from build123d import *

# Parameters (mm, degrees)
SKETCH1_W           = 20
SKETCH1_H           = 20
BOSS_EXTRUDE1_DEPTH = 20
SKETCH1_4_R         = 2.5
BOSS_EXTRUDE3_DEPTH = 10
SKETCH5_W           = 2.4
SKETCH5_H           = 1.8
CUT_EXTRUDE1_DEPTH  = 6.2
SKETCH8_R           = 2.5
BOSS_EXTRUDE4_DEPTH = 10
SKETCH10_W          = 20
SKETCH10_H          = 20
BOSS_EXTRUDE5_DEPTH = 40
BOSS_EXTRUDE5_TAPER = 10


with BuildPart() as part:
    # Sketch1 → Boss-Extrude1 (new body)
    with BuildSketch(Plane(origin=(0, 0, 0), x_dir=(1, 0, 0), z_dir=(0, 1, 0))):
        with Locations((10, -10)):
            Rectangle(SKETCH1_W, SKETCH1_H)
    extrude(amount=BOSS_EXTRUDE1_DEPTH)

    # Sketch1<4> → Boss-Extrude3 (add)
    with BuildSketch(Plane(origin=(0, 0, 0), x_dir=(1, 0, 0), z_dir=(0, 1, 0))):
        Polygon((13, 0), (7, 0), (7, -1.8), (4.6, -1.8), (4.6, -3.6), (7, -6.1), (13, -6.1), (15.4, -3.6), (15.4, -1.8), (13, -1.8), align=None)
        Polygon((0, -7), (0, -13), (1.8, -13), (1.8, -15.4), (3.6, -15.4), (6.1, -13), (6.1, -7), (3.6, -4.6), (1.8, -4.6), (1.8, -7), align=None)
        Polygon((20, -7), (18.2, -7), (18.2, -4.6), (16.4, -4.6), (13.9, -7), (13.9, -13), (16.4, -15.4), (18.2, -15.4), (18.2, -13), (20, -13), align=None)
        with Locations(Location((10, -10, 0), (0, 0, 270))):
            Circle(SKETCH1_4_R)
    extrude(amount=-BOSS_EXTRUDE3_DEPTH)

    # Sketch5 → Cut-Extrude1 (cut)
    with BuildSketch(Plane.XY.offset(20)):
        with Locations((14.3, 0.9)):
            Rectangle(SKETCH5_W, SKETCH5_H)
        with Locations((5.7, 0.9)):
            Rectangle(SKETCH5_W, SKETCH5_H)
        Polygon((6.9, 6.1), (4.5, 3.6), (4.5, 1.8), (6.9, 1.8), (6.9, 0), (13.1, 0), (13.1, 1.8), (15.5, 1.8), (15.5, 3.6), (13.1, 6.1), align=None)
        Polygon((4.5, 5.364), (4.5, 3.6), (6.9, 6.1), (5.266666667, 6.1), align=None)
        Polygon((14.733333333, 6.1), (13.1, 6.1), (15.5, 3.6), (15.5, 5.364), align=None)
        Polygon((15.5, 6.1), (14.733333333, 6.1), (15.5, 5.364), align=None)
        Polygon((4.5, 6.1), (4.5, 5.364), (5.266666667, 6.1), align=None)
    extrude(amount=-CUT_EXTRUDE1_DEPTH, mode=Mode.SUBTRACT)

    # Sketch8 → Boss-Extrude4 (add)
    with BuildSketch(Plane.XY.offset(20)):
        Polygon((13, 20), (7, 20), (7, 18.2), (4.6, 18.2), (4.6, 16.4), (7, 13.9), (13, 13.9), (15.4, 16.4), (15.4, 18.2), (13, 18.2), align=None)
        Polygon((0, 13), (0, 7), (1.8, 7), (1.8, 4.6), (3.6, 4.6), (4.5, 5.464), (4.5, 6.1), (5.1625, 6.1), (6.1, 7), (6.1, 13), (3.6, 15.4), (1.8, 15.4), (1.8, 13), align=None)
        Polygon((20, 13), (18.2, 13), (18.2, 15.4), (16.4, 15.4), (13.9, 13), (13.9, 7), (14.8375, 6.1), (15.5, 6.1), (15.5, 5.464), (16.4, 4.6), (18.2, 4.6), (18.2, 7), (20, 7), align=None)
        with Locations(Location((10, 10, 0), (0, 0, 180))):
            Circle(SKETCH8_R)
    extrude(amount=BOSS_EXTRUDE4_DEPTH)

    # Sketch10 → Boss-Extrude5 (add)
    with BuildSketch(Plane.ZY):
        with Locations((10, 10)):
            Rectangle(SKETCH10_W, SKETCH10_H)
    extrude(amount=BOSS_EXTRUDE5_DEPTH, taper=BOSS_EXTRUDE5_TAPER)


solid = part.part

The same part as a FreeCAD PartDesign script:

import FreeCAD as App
import Part
import Sketcher
Q = App.Units.Quantity

doc = App.newDocument("Part")
body = doc.addObject("PartDesign::Body", "Body")

sketch1 = body.newObject("Sketcher::SketchObject", "Sketch")
sketch1.AttachmentSupport = (doc.getObject("XZ_Plane"), [""])
sketch1.MapMode = "FlatFace"
sketch1.addGeometry([
    Part.LineSegment(App.Vector(0, 0, 0), App.Vector(0, 20, 0)),
    Part.LineSegment(App.Vector(0, 20, 0), App.Vector(20, 20, 0)),
    Part.LineSegment(App.Vector(20, 20, 0), App.Vector(20, 0, 0)),
    Part.LineSegment(App.Vector(20, 0, 0), App.Vector(0, 0, 0)),
], False)
sketch1.addConstraint([
    Sketcher.Constraint("Coincident", 0, 2, 1, 1),
    Sketcher.Constraint("Coincident", 1, 2, 2, 1),
    Sketcher.Constraint("Coincident", 2, 2, 3, 1),
    Sketcher.Constraint("Coincident", 3, 2, 0, 1),
    Sketcher.Constraint("Vertical", 0),
    Sketcher.Constraint("Horizontal", 1),
    Sketcher.Constraint("Vertical", 2),
    Sketcher.Constraint("Horizontal", 3),
    Sketcher.Constraint("Coincident", 3, 2, -1, 1),
    Sketcher.Constraint("Equal", 3, 0),
    Sketcher.Constraint("DistanceX", 1, 1, 1, 2, Q("20 mm")),
])
pad1 = body.newObject("PartDesign::Pad", "Pad")
pad1.Profile = sketch1
pad1.Length = 20
pad1.Reversed = True

sketch2 = body.newObject("Sketcher::SketchObject", "Sketch001")
sketch2.AttachmentSupport = (doc.getObject("XZ_Plane"), [""])
sketch2.MapMode = "FlatFace"
sketch2.addGeometry([
    Part.LineSegment(App.Vector(13, 0, 0), App.Vector(7, 0, 0)),
    Part.LineSegment(App.Vector(7, 0, 0), App.Vector(7, 1.8, 0)),
    Part.LineSegment(App.Vector(7, 1.8, 0), App.Vector(4.6, 1.8, 0)),
    Part.LineSegment(App.Vector(4.6, 1.8, 0), App.Vector(4.6, 3.6, 0)),
    Part.LineSegment(App.Vector(4.6, 3.6, 0), App.Vector(7, 6.1, 0)),
    Part.LineSegment(App.Vector(7, 6.1, 0), App.Vector(13, 6.1, 0)),
    Part.LineSegment(App.Vector(13, 6.1, 0), App.Vector(15.4, 3.6, 0)),
    Part.LineSegment(App.Vector(15.4, 3.6, 0), App.Vector(15.4, 1.8, 0)),
    Part.LineSegment(App.Vector(15.4, 1.8, 0), App.Vector(13, 1.8, 0)),
    Part.LineSegment(App.Vector(13, 1.8, 0), App.Vector(13, 0, 0)),
    Part.LineSegment(App.Vector(0, 7, 0), App.Vector(0, 13, 0)),
    Part.LineSegment(App.Vector(0, 13, 0), App.Vector(1.8, 13, 0)),
    Part.LineSegment(App.Vector(1.8, 13, 0), App.Vector(1.8, 15.4, 0)),
    Part.LineSegment(App.Vector(1.8, 15.4, 0), App.Vector(3.6, 15.4, 0)),
    Part.LineSegment(App.Vector(3.6, 15.4, 0), App.Vector(6.1, 13, 0)),
    Part.LineSegment(App.Vector(6.1, 13, 0), App.Vector(6.1, 7, 0)),
    Part.LineSegment(App.Vector(6.1, 7, 0), App.Vector(3.6, 4.6, 0)),
    Part.LineSegment(App.Vector(3.6, 4.6, 0), App.Vector(1.8, 4.6, 0)),
    Part.LineSegment(App.Vector(1.8, 4.6, 0), App.Vector(1.8, 7, 0)),
    Part.LineSegment(App.Vector(1.8, 7, 0), App.Vector(0, 7, 0)),
    Part.LineSegment(App.Vector(20, 7, 0), App.Vector(18.2, 7, 0)),
    Part.LineSegment(App.Vector(18.2, 7, 0), App.Vector(18.2, 4.6, 0)),
    Part.LineSegment(App.Vector(18.2, 4.6, 0), App.Vector(16.4, 4.6, 0)),
    Part.LineSegment(App.Vector(16.4, 4.6, 0), App.Vector(13.9, 7, 0)),
    Part.LineSegment(App.Vector(13.9, 7, 0), App.Vector(13.9, 13, 0)),
    Part.LineSegment(App.Vector(13.9, 13, 0), App.Vector(16.4, 15.4, 0)),
    Part.LineSegment(App.Vector(16.4, 15.4, 0), App.Vector(18.2, 15.4, 0)),
    Part.LineSegment(App.Vector(18.2, 15.4, 0), App.Vector(18.2, 13, 0)),
    Part.LineSegment(App.Vector(18.2, 13, 0), App.Vector(20, 13, 0)),
    Part.LineSegment(App.Vector(20, 13, 0), App.Vector(20, 7, 0)),
    Part.Circle(App.Vector(10, 10, 0), App.Vector(0, 0, 1), 2.5),
], False)
sketch2.addConstraint([
    Sketcher.Constraint("Coincident", 0, 2, 1, 1),
    Sketcher.Constraint("Coincident", 1, 2, 2, 1),
    Sketcher.Constraint("Coincident", 2, 2, 3, 1),
    Sketcher.Constraint("Coincident", 3, 2, 4, 1),
    Sketcher.Constraint("Coincident", 4, 2, 5, 1),
    Sketcher.Constraint("Coincident", 5, 2, 6, 1),
    Sketcher.Constraint("Coincident", 6, 2, 7, 1),
    Sketcher.Constraint("Coincident", 7, 2, 8, 1),
    Sketcher.Constraint("Coincident", 8, 2, 9, 1),
    Sketcher.Constraint("Coincident", 9, 2, 0, 1),
    Sketcher.Constraint("Coincident", 10, 2, 11, 1),
    Sketcher.Constraint("Coincident", 11, 2, 12, 1),
    Sketcher.Constraint("Coincident", 12, 2, 13, 1),
    Sketcher.Constraint("Coincident", 13, 2, 14, 1),
    Sketcher.Constraint("Coincident", 14, 2, 15, 1),
    Sketcher.Constraint("Coincident", 15, 2, 16, 1),
    Sketcher.Constraint("Coincident", 16, 2, 17, 1),
    Sketcher.Constraint("Coincident", 17, 2, 18, 1),
    Sketcher.Constraint("Coincident", 18, 2, 19, 1),
    Sketcher.Constraint("Coincident", 19, 2, 10, 1),
    Sketcher.Constraint("Coincident", 20, 2, 21, 1),
    Sketcher.Constraint("Coincident", 21, 2, 22, 1),
    Sketcher.Constraint("Coincident", 22, 2, 23, 1),
    Sketcher.Constraint("Coincident", 23, 2, 24, 1),
    Sketcher.Constraint("Coincident", 24, 2, 25, 1),
    Sketcher.Constraint("Coincident", 25, 2, 26, 1),
    Sketcher.Constraint("Coincident", 26, 2, 27, 1),
    Sketcher.Constraint("Coincident", 27, 2, 28, 1),
    Sketcher.Constraint("Coincident", 28, 2, 29, 1),
    Sketcher.Constraint("Coincident", 29, 2, 20, 1),
    Sketcher.Constraint("Horizontal", 0),
    Sketcher.Constraint("Vertical", 1),
    Sketcher.Constraint("Horizontal", 2),
    Sketcher.Constraint("Vertical", 3),
    Sketcher.Constraint("Horizontal", 5),
    Sketcher.Constraint("Vertical", 7),
    Sketcher.Constraint("Horizontal", 8),
    Sketcher.Constraint("Vertical", 9),
    Sketcher.Constraint("Vertical", 10),
    Sketcher.Constraint("Horizontal", 11),
    Sketcher.Constraint("Vertical", 12),
    Sketcher.Constraint("Horizontal", 13),
    Sketcher.Constraint("Vertical", 15),
    Sketcher.Constraint("Horizontal", 17),
    Sketcher.Constraint("Vertical", 18),
    Sketcher.Constraint("Horizontal", 19),
    Sketcher.Constraint("Horizontal", 20),
    Sketcher.Constraint("Vertical", 21),
    Sketcher.Constraint("Horizontal", 22),
    Sketcher.Constraint("Vertical", 24),
    Sketcher.Constraint("Horizontal", 26),
    Sketcher.Constraint("Vertical", 27),
    Sketcher.Constraint("Horizontal", 28),
    Sketcher.Constraint("Vertical", 29),
    Sketcher.Constraint("PointOnObject", 0, 2, -1),
    Sketcher.Constraint("PointOnObject", 10, 2, -2),
    Sketcher.Constraint("Perpendicular", 4, 14),
    Sketcher.Constraint("Perpendicular", 6, 16),
    Sketcher.Constraint("Parallel", 14, 23),
    Sketcher.Constraint("Parallel", 16, 25),
    Sketcher.Constraint("Horizontal", 3, 2, 6, 2),
    Sketcher.Constraint("Horizontal", 2, 2, 7, 2),
    Sketcher.Constraint("Horizontal", 11, 2, 14, 2),
    Sketcher.Constraint("Horizontal", 15, 2, 18, 2),
    Sketcher.Constraint("Horizontal", 19, 2, 20, 2),
    Sketcher.Constraint("Horizontal", 17, 2, 21, 2),
    Sketcher.Constraint("Horizontal", 20, 2, 23, 2),
    Sketcher.Constraint("Horizontal", 14, 2, 24, 2),
    Sketcher.Constraint("Horizontal", 13, 2, 25, 2),
    Sketcher.Constraint("Horizontal", 24, 2, 27, 2),
    Sketcher.Constraint("Vertical", 1, 2, 4, 2),
    Sketcher.Constraint("Vertical", 5, 2, 8, 2),
    Sketcher.Constraint("Vertical", 13, 2, 16, 2),
    Sketcher.Constraint("Vertical", 12, 2, 17, 2),
    Sketcher.Constraint("Vertical", 22, 2, 25, 2),
    Sketcher.Constraint("Vertical", 21, 2, 26, 2),
    Sketcher.Constraint("Equal", 11, 13),
    Sketcher.Constraint("Equal", 19, 20),
    Sketcher.Constraint("Equal", 20, 22),
    Sketcher.Constraint("Equal", 28, 1),
    Sketcher.Constraint("Equal", 1, 3),
    Sketcher.Constraint("Equal", 5, 10),
    Sketcher.Constraint("Equal", 8, 12),
    Sketcher.Constraint("Diameter", 30, Q("5 mm")),
    Sketcher.Constraint("DistanceX", 0, 2, 0, 1, Q("6 mm")),
    Sketcher.Constraint("DistanceX", 2, 2, 2, 1, Q("2.4 mm")),
    Sketcher.Constraint("DistanceX", 11, 1, 11, 2, Q("1.8 mm")),
    Sketcher.Constraint("DistanceX", -1, 1, 30, 3, Q("10 mm")),
    Sketcher.Constraint("DistanceY", -1, 1, 30, 3, Q("10 mm")),
    Sketcher.Constraint("DistanceX", -1, 1, 0, 2, Q("7 mm")),
    Sketcher.Constraint("DistanceY", -1, 1, 10, 2, Q("13 mm")),
    Sketcher.Constraint("DistanceX", -1, 1, 28, 2, Q("20 mm")),
    Sketcher.Constraint("DistanceY", -1, 1, 4, 2, Q("6.1 mm")),
])
pad2 = body.newObject("PartDesign::Pad", "Pad001")
pad2.Profile = sketch2
pad2.Length = 10

sketch3 = body.newObject("Sketcher::SketchObject", "Sketch002")
sketch3.AttachmentSupport = (doc.getObject("XY_Plane"), [""])
sketch3.MapMode = "FlatFace"
sketch3.AttachmentOffset = App.Placement(App.Vector(0, 0, 20), App.Rotation())
sketch3.addGeometry([
    Part.LineSegment(App.Vector(16, 0, 0), App.Vector(16, 6, 0)),
    Part.LineSegment(App.Vector(16, 6, 0), App.Vector(4, 6, 0)),
    Part.LineSegment(App.Vector(4, 6, 0), App.Vector(4, 0, 0)),
    Part.LineSegment(App.Vector(4, 0, 0), App.Vector(16, 0, 0)),
], False)
sketch3.addConstraint([
    Sketcher.Constraint("Coincident", 0, 2, 1, 1),
    Sketcher.Constraint("Coincident", 1, 2, 2, 1),
    Sketcher.Constraint("Coincident", 2, 2, 3, 1),
    Sketcher.Constraint("Coincident", 3, 2, 0, 1),
    Sketcher.Constraint("Vertical", 0),
    Sketcher.Constraint("Horizontal", 1),
    Sketcher.Constraint("Vertical", 2),
    Sketcher.Constraint("Horizontal", 3),
    Sketcher.Constraint("PointOnObject", 2, 2, -1),
    Sketcher.Constraint("DistanceX", 1, 2, 1, 1, Q("11 mm")),
    Sketcher.Constraint("DistanceY", 0, 1, 0, 2, Q("6.1 mm")),
    Sketcher.Constraint("DistanceX", -1, 1, 0, 2, Q("15.5 mm")),
])
pocket1 = body.newObject("PartDesign::Pocket", "Pocket")
pocket1.Profile = sketch3
pocket1.Length = 6.2

sketch4 = body.newObject("Sketcher::SketchObject", "Sketch003")
sketch4.AttachmentSupport = (doc.getObject("XY_Plane"), [""])
sketch4.MapMode = "FlatFace"
sketch4.AttachmentOffset = App.Placement(App.Vector(0, 0, 20), App.Rotation())
sketch4.addGeometry([
    Part.LineSegment(App.Vector(13, 20, 0), App.Vector(7, 20, 0)),
    Part.LineSegment(App.Vector(7, 20, 0), App.Vector(7, 18.2, 0)),
    Part.LineSegment(App.Vector(7, 18.2, 0), App.Vector(4.6, 18.2, 0)),
    Part.LineSegment(App.Vector(4.6, 18.2, 0), App.Vector(4.6, 16.4, 0)),
    Part.LineSegment(App.Vector(4.6, 16.4, 0), App.Vector(7, 13.9, 0)),
    Part.LineSegment(App.Vector(7, 13.9, 0), App.Vector(13, 13.9, 0)),
    Part.LineSegment(App.Vector(13, 13.9, 0), App.Vector(15.4, 16.4, 0)),
    Part.LineSegment(App.Vector(15.4, 16.4, 0), App.Vector(15.4, 18.2, 0)),
    Part.LineSegment(App.Vector(15.4, 18.2, 0), App.Vector(13, 18.2, 0)),
    Part.LineSegment(App.Vector(13, 18.2, 0), App.Vector(13, 20, 0)),
    Part.LineSegment(App.Vector(0, 13, 0), App.Vector(0, 7, 0)),
    Part.LineSegment(App.Vector(0, 7, 0), App.Vector(1.8, 7, 0)),
    Part.LineSegment(App.Vector(1.8, 7, 0), App.Vector(1.8, 4.6, 0)),
    Part.LineSegment(App.Vector(1.8, 4.6, 0), App.Vector(3.6, 4.6, 0)),
    Part.LineSegment(App.Vector(3.6, 4.6, 0), App.Vector(4.5, 5.5, 0)),
    Part.LineSegment(App.Vector(4.5, 5.5, 0), App.Vector(4.5, 6.1, 0)),
    Part.LineSegment(App.Vector(4.5, 6.1, 0), App.Vector(5.2, 6.1, 0)),
    Part.LineSegment(App.Vector(5.2, 6.1, 0), App.Vector(6.1, 7, 0)),
    Part.LineSegment(App.Vector(6.1, 7, 0), App.Vector(6.1, 13, 0)),
    Part.LineSegment(App.Vector(6.1, 13, 0), App.Vector(3.6, 15.4, 0)),
    Part.LineSegment(App.Vector(3.6, 15.4, 0), App.Vector(1.8, 15.4, 0)),
    Part.LineSegment(App.Vector(1.8, 15.4, 0), App.Vector(1.8, 13, 0)),
    Part.LineSegment(App.Vector(1.8, 13, 0), App.Vector(0, 13, 0)),
    Part.LineSegment(App.Vector(20, 13, 0), App.Vector(18.2, 13, 0)),
    Part.LineSegment(App.Vector(18.2, 13, 0), App.Vector(18.2, 15.4, 0)),
    Part.LineSegment(App.Vector(18.2, 15.4, 0), App.Vector(16.4, 15.4, 0)),
    Part.LineSegment(App.Vector(16.4, 15.4, 0), App.Vector(13.9, 13, 0)),
    Part.LineSegment(App.Vector(13.9, 13, 0), App.Vector(13.9, 7, 0)),
    Part.LineSegment(App.Vector(13.9, 7, 0), App.Vector(14.8, 6.1, 0)),
    Part.LineSegment(App.Vector(14.8, 6.1, 0), App.Vector(15.5, 6.1, 0)),
    Part.LineSegment(App.Vector(15.5, 6.1, 0), App.Vector(15.5, 5.5, 0)),
    Part.LineSegment(App.Vector(15.5, 5.5, 0), App.Vector(16.4, 4.6, 0)),
    Part.LineSegment(App.Vector(16.4, 4.6, 0), App.Vector(18.2, 4.6, 0)),
    Part.LineSegment(App.Vector(18.2, 4.6, 0), App.Vector(18.2, 7, 0)),
    Part.LineSegment(App.Vector(18.2, 7, 0), App.Vector(20, 7, 0)),
    Part.LineSegment(App.Vector(20, 7, 0), App.Vector(20, 13, 0)),
    Part.Circle(App.Vector(10, 10, 0), App.Vector(0, 0, 1), 2.5),
], False)
sketch4.addConstraint([
    Sketcher.Constraint("Coincident", 0, 2, 1, 1),
    Sketcher.Constraint("Coincident", 1, 2, 2, 1),
    Sketcher.Constraint("Coincident", 2, 2, 3, 1),
    Sketcher.Constraint("Coincident", 3, 2, 4, 1),
    Sketcher.Constraint("Coincident", 4, 2, 5, 1),
    Sketcher.Constraint("Coincident", 5, 2, 6, 1),
    Sketcher.Constraint("Coincident", 6, 2, 7, 1),
    Sketcher.Constraint("Coincident", 7, 2, 8, 1),
    Sketcher.Constraint("Coincident", 8, 2, 9, 1),
    Sketcher.Constraint("Coincident", 9, 2, 0, 1),
    Sketcher.Constraint("Coincident", 10, 2, 11, 1),
    Sketcher.Constraint("Coincident", 11, 2, 12, 1),
    Sketcher.Constraint("Coincident", 12, 2, 13, 1),
    Sketcher.Constraint("Coincident", 13, 2, 14, 1),
    Sketcher.Constraint("Coincident", 14, 2, 15, 1),
    Sketcher.Constraint("Coincident", 15, 2, 16, 1),
    Sketcher.Constraint("Coincident", 16, 2, 17, 1),
    Sketcher.Constraint("Coincident", 17, 2, 18, 1),
    Sketcher.Constraint("Coincident", 18, 2, 19, 1),
    Sketcher.Constraint("Coincident", 19, 2, 20, 1),
    Sketcher.Constraint("Coincident", 20, 2, 21, 1),
    Sketcher.Constraint("Coincident", 21, 2, 22, 1),
    Sketcher.Constraint("Coincident", 22, 2, 10, 1),
    Sketcher.Constraint("Coincident", 23, 2, 24, 1),
    Sketcher.Constraint("Coincident", 24, 2, 25, 1),
    Sketcher.Constraint("Coincident", 25, 2, 26, 1),
    Sketcher.Constraint("Coincident", 26, 2, 27, 1),
    Sketcher.Constraint("Coincident", 27, 2, 28, 1),
    Sketcher.Constraint("Coincident", 28, 2, 29, 1),
    Sketcher.Constraint("Coincident", 29, 2, 30, 1),
    Sketcher.Constraint("Coincident", 30, 2, 31, 1),
    Sketcher.Constraint("Coincident", 31, 2, 32, 1),
    Sketcher.Constraint("Coincident", 32, 2, 33, 1),
    Sketcher.Constraint("Coincident", 33, 2, 34, 1),
    Sketcher.Constraint("Coincident", 34, 2, 35, 1),
    Sketcher.Constraint("Coincident", 35, 2, 23, 1),
    Sketcher.Constraint("Horizontal", 0),
    Sketcher.Constraint("Vertical", 1),
    Sketcher.Constraint("Horizontal", 2),
    Sketcher.Constraint("Vertical", 3),
    Sketcher.Constraint("Horizontal", 5),
    Sketcher.Constraint("Vertical", 7),
    Sketcher.Constraint("Horizontal", 8),
    Sketcher.Constraint("Vertical", 9),
    Sketcher.Constraint("Vertical", 10),
    Sketcher.Constraint("Horizontal", 11),
    Sketcher.Constraint("Vertical", 12),
    Sketcher.Constraint("Horizontal", 13),
    Sketcher.Constraint("Vertical", 15),
    Sketcher.Constraint("Horizontal", 16),
    Sketcher.Constraint("Vertical", 18),
    Sketcher.Constraint("Horizontal", 20),
    Sketcher.Constraint("Vertical", 21),
    Sketcher.Constraint("Horizontal", 22),
    Sketcher.Constraint("Horizontal", 23),
    Sketcher.Constraint("Vertical", 24),
    Sketcher.Constraint("Horizontal", 25),
    Sketcher.Constraint("Vertical", 27),
    Sketcher.Constraint("Horizontal", 29),
    Sketcher.Constraint("Vertical", 30),
    Sketcher.Constraint("Horizontal", 32),
    Sketcher.Constraint("Vertical", 33),
    Sketcher.Constraint("Horizontal", 34),
    Sketcher.Constraint("Vertical", 35),
    Sketcher.Constraint("PointOnObject", 10, 2, -2),
    Sketcher.Constraint("Perpendicular", 4, 14),
    Sketcher.Constraint("Parallel", 14, 17),
    Sketcher.Constraint("Perpendicular", 6, 19),
    Sketcher.Constraint("Parallel", 17, 26),
    Sketcher.Constraint("Parallel", 19, 28),
    Sketcher.Constraint("Parallel", 28, 31),
    Sketcher.Constraint("Horizontal", 3, 2, 6, 2),
    Sketcher.Constraint("Horizontal", 2, 2, 7, 2),
    Sketcher.Constraint("Horizontal", 11, 2, 17, 2),
    Sketcher.Constraint("Horizontal", 18, 2, 21, 2),
    Sketcher.Constraint("Horizontal", 22, 2, 23, 2),
    Sketcher.Constraint("Horizontal", 20, 2, 24, 2),
    Sketcher.Constraint("Horizontal", 23, 2, 26, 2),
    Sketcher.Constraint("Horizontal", 17, 2, 27, 2),
    Sketcher.Constraint("Horizontal", 16, 2, 28, 2),
    Sketcher.Constraint("Horizontal", 14, 2, 30, 2),
    Sketcher.Constraint("Horizontal", 13, 2, 31, 2),
    Sketcher.Constraint("Horizontal", 27, 2, 33, 2),
    Sketcher.Constraint("Vertical", 1, 2, 4, 2),
    Sketcher.Constraint("Vertical", 5, 2, 8, 2),
    Sketcher.Constraint("Vertical", 13, 2, 19, 2),
    Sketcher.Constraint("Vertical", 12, 2, 20, 2),
    Sketcher.Constraint("Vertical", 25, 2, 31, 2),
    Sketcher.Constraint("Vertical", 24, 2, 32, 2),
    Sketcher.Constraint("Equal", 2, 8),
    Sketcher.Constraint("Equal", 11, 13),
    Sketcher.Constraint("Equal", 22, 23),
    Sketcher.Constraint("Equal", 23, 25),
    Sketcher.Constraint("Equal", 34, 1),
    Sketcher.Constraint("Equal", 1, 3),
    Sketcher.Constraint("Equal", 5, 10),
    Sketcher.Constraint("Equal", 8, 12),
    Sketcher.Constraint("Equal", 12, 21),
    Sketcher.Constraint("Diameter", 36, Q("5 mm")),
    Sketcher.Constraint("DistanceX", 0, 2, 0, 1, Q("6 mm")),
    Sketcher.Constraint("DistanceX", 2, 2, 2, 1, Q("2.4 mm")),
    Sketcher.Constraint("DistanceX", 11, 1, 11, 2, Q("1.8 mm")),
    Sketcher.Constraint("DistanceX", -1, 1, 36, 3, Q("10 mm")),
    Sketcher.Constraint("DistanceY", -1, 1, 36, 3, Q("10 mm")),
    Sketcher.Constraint("DistanceX", -1, 1, 0, 2, Q("7 mm")),
    Sketcher.Constraint("DistanceY", -1, 1, 0, 2, Q("20 mm")),
    Sketcher.Constraint("DistanceY", -1, 1, 10, 2, Q("7 mm")),
    Sketcher.Constraint("DistanceX", -1, 1, 34, 2, Q("20 mm")),
    Sketcher.Constraint("DistanceY", -1, 1, 4, 2, Q("13.9 mm")),
    Sketcher.Constraint("DistanceX", -1, 1, 14, 2, Q("4.5 mm")),
    Sketcher.Constraint("DistanceY", -1, 1, 15, 2, Q("6.1 mm")),
])
pad3 = body.newObject("PartDesign::Pad", "Pad002")
pad3.Profile = sketch4
pad3.Length = 10

sketch5 = body.newObject("Sketcher::SketchObject", "Sketch004")
sketch5.AttachmentSupport = (doc.getObject("YZ_Plane"), [""])
sketch5.MapMode = "FlatFace"
sketch5.addGeometry([
    Part.LineSegment(App.Vector(20, 0, 0), App.Vector(0, 0, 0)),
    Part.LineSegment(App.Vector(0, 0, 0), App.Vector(0, 20, 0)),
    Part.LineSegment(App.Vector(0, 20, 0), App.Vector(20, 20, 0)),
    Part.LineSegment(App.Vector(20, 20, 0), App.Vector(20, 0, 0)),
], False)
sketch5.addConstraint([
    Sketcher.Constraint("Coincident", 0, 2, 1, 1),
    Sketcher.Constraint("Coincident", 1, 2, 2, 1),
    Sketcher.Constraint("Coincident", 2, 2, 3, 1),
    Sketcher.Constraint("Coincident", 3, 2, 0, 1),
    Sketcher.Constraint("Horizontal", 0),
    Sketcher.Constraint("Vertical", 1),
    Sketcher.Constraint("Horizontal", 2),
    Sketcher.Constraint("Vertical", 3),
    Sketcher.Constraint("Coincident", 0, 2, -1, 1),
    Sketcher.Constraint("Equal", 2, 1),
    Sketcher.Constraint("DistanceX", 0, 2, 0, 1, Q("20 mm")),
])
pad4 = body.newObject("PartDesign::Pad", "Pad003")
pad4.Profile = sketch5
pad4.Length = 40
pad4.Reversed = True
pad4.TaperAngle = -10

doc.recompute()
